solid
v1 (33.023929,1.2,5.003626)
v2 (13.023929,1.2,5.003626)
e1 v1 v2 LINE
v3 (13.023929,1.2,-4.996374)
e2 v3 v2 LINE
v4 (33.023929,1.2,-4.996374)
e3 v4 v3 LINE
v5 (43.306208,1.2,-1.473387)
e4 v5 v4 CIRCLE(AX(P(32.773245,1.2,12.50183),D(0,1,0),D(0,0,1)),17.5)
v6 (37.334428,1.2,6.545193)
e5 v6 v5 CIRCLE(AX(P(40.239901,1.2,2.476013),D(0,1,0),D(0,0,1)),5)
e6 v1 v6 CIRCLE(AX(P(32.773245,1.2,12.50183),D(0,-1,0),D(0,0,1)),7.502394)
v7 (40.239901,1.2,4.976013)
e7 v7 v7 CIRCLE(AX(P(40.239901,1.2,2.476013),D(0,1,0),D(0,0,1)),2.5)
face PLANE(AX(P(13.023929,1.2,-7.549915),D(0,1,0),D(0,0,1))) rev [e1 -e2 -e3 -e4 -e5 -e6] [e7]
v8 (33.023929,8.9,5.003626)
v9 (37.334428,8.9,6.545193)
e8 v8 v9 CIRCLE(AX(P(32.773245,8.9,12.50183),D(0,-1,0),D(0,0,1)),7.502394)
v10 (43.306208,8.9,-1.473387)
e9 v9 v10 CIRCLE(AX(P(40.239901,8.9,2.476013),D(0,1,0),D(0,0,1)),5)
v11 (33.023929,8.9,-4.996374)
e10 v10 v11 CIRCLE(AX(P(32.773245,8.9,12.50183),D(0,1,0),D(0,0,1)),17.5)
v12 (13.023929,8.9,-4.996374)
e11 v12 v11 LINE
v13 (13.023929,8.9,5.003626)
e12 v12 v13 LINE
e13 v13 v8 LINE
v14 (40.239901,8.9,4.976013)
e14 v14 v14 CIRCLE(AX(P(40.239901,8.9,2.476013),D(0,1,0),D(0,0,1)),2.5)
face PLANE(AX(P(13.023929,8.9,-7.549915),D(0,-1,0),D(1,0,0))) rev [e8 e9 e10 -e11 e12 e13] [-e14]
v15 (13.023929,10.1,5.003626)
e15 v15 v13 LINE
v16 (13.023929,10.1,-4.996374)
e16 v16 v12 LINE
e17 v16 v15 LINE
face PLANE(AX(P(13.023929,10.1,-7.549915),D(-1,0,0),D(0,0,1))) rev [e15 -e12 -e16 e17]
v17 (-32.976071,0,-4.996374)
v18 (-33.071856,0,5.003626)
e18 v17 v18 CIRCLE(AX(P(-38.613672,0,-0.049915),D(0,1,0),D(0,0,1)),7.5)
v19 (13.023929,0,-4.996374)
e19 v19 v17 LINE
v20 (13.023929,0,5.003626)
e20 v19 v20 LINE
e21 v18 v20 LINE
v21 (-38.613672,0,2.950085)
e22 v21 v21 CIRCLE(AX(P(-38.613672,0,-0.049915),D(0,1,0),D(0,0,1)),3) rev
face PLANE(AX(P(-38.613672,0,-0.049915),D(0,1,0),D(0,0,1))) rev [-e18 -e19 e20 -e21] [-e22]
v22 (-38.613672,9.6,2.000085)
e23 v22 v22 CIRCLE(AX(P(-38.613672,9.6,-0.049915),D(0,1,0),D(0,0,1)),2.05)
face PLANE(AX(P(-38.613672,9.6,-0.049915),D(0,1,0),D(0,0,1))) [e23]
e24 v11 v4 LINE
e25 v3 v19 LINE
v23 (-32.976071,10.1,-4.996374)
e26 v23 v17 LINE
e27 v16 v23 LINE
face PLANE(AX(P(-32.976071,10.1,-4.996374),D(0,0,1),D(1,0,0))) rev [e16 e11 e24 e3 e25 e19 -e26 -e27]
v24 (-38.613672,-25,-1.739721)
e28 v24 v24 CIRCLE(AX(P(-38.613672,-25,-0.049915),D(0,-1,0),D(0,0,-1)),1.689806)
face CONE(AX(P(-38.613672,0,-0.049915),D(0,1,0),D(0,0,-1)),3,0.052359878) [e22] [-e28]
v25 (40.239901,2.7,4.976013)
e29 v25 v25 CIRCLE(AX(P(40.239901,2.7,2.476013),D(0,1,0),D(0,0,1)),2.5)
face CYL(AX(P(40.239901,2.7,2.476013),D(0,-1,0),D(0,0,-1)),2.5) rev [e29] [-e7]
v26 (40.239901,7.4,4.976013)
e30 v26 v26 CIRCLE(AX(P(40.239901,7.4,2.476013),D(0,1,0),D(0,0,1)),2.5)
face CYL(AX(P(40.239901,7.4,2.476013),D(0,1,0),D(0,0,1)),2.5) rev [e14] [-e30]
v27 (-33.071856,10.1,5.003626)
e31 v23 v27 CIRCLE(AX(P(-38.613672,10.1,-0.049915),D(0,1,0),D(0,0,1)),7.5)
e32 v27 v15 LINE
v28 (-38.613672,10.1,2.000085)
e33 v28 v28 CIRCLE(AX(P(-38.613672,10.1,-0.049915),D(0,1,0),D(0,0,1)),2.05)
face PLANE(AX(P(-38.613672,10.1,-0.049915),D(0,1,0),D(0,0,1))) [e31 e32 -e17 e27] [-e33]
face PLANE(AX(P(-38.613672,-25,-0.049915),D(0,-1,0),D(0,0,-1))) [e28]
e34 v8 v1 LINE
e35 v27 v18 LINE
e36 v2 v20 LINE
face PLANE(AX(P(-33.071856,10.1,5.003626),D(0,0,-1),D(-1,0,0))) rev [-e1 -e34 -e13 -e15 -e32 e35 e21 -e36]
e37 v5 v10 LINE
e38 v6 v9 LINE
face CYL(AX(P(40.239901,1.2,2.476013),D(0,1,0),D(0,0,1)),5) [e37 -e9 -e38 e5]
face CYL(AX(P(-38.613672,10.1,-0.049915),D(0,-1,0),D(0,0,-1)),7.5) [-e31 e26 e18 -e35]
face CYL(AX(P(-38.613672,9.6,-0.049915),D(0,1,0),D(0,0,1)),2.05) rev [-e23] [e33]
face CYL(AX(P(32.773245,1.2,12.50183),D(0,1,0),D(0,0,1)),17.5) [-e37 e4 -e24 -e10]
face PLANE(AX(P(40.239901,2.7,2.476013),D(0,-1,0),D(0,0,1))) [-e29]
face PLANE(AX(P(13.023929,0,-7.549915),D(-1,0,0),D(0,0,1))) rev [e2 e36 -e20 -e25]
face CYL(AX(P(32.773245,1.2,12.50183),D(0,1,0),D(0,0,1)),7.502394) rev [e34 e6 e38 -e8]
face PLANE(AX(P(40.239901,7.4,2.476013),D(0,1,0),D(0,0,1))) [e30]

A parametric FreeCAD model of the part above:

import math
import FreeCAD as App
import Part
import Sketcher
from FreeCAD import Vector
Q = App.Units.Quantity


def add_polygon(sketch, points):
    """Adds a closed chain of lines whose ends are joined by coincident constraints."""
    first, n = sketch.GeometryCount, len(points)
    for a, b in zip(points, points[1:] + points[:1]):
        sketch.addGeometry(Part.LineSegment(App.Vector(*a, 0), App.Vector(*b, 0)), False)
    for i in range(n):
        sketch.addConstraint(Sketcher.Constraint("Coincident", first + i, 2, first + (i + 1) % n, 1))

doc = App.newDocument("Part")
params = doc.addObject("Spreadsheet::Sheet", "Params")
for row, (alias, value) in enumerate([
    ("sketch1_radius", "7.5 mm"),
    ("sketch1_width", "66 mm"),
    ("sketch1_height", "10 mm"),
    ("pad1_length", "10.1 mm"),
    ("sketch2_diameter", "4.1 mm"),
    ("pocket1_length", "0.5 mm"),
    ("sketch3_width", "20 mm"),
    ("sketch3_height", "1.2 mm"),
    ("sketch4_radius", "5 mm"),
    ("sketch4_radius2", "17.5 mm"),
    ("sketch4_height", "10 mm"),
    ("pad2_length", "7.7 mm"),
    ("sketch5_diameter", "5 mm"),
    ("pocket3_length", "1.5 mm"),
    ("sketch6_diameter", "6 mm"),
    ("pad3_length", "25 mm"),
    ("pad3_taper", "-3 deg"),
], start=1):
    params.set(f"A{row}", alias)
    params.set(f"B{row}", "=" + value)
    params.setAlias(f"B{row}", alias)

body = doc.addObject("PartDesign::Body", "Body")

# Sketch on XZ plane
sketch1 = doc.addObject("Sketcher::SketchObject", "Sketch")
body.addObject(sketch1)
sketch1.AttachmentSupport = (doc.XZ_Plane, [""])
sketch1.MapMode = "FlatFace"
sketch1.addGeometry(Part.LineSegment(Vector(-33, 5, 0), Vector(33, 5, 0)), False)
sketch1.addGeometry(Part.LineSegment(Vector(33, 5, 0), Vector(33, -5, 0)), False)
sketch1.addGeometry(Part.LineSegment(Vector(33, -5, 0), Vector(-33, -5, 0)), False)
sketch1.addGeometry(Part.ArcOfCircle(Part.Circle(Vector(-39, 0, 0), Vector(0, 0, 1), 8), math.radians(42), math.radians(319)), False)
sketch1.addConstraint(Sketcher.Constraint("Coincident", 0, 2, 1, 1))
sketch1.addConstraint(Sketcher.Constraint("Coincident", 1, 2, 2, 1))
sketch1.addConstraint(Sketcher.Constraint("Coincident", 2, 2, 3, 2))
sketch1.addConstraint(Sketcher.Constraint("Coincident", 3, 1, 0, 1))
sketch1.addConstraint(Sketcher.Constraint("Horizontal", 0))
sketch1.addConstraint(Sketcher.Constraint("Vertical", 1))
sketch1.addConstraint(Sketcher.Constraint("Horizontal", 2))
sketch1.addConstraint(Sketcher.Constraint("Radius", 3, Q("7.5 mm")))
sketch1.addConstraint(Sketcher.Constraint("DistanceX", 2, 2, 2, 1, Q("66 mm")))
sketch1.addConstraint(Sketcher.Constraint("DistanceY", 1, 2, 1, 1, Q("10 mm")))
sketch1.addConstraint(Sketcher.Constraint("DistanceX", 3, 3, 0, 2, Q("71.637601 mm")))
sketch1.addConstraint(Sketcher.Constraint("DistanceX", -1, 1, 0, 2, Q("33.023929 mm")))
sketch1.addConstraint(Sketcher.Constraint("DistanceY", 3, 3, -1, 1, Q("0.049915 mm")))
sketch1.setExpression("Constraints[7]", "Params.sketch1_radius")
sketch1.setExpression("Constraints[8]", "Params.sketch1_width")
sketch1.setExpression("Constraints[9]", "Params.sketch1_height")
pad1 = doc.addObject("PartDesign::Pad", "Pad")
body.addObject(pad1)
pad1.Profile = sketch1
pad1.setExpression("Length", "Params.pad1_length")
pad1.Reversed = True

# Sketch on XZ plane
sketch2 = doc.addObject("Sketcher::SketchObject", "Sketch001")
body.addObject(sketch2)
sketch2.AttachmentSupport = (doc.XZ_Plane, [""])
sketch2.MapMode = "FlatFace"
sketch2.AttachmentOffset = App.Placement(Vector(0, 0, -10.1), App.Rotation())
sketch2.addGeometry(Part.Circle(Vector(-38.6, 0, 0), Vector(0, 0, 1), 2), False)
sketch2.addConstraint(Sketcher.Constraint("Diameter", 0, Q("4.1 mm")))
sketch2.addConstraint(Sketcher.Constraint("DistanceX", 0, 3, -1, 1, Q("38.613672 mm")))
sketch2.addConstraint(Sketcher.Constraint("DistanceY", 0, 3, -1, 1, Q("0.049915 mm")))
sketch2.setExpression("Constraints[0]", "Params.sketch2_diameter")
pocket1 = doc.addObject("PartDesign::Pocket", "Pocket")
body.addObject(pocket1)
pocket1.Profile = sketch2
pocket1.setExpression("Length", "Params.pocket1_length")
pocket1.Reversed = True

# Sketch on XY plane
sketch3 = doc.addObject("Sketcher::SketchObject", "Sketch002")
body.addObject(sketch3)
sketch3.AttachmentSupport = (doc.XY_Plane, [""])
sketch3.MapMode = "FlatFace"
sketch3.AttachmentOffset = App.Placement(Vector(0, 0, 5.003626), App.Rotation())
add_polygon(sketch3, [(13, 10.1), (13, 8.9), (33, 8.9), (33, 10.1)])  # lines 0-3
add_polygon(sketch3, [(13, 1.2), (13, 0), (33, 0), (33, 1.2)])  # lines 4-7
sketch3.addConstraint(Sketcher.Constraint("Vertical", 0))
sketch3.addConstraint(Sketcher.Constraint("Horizontal", 1))
sketch3.addConstraint(Sketcher.Constraint("Vertical", 2))
sketch3.addConstraint(Sketcher.Constraint("Horizontal", 3))
sketch3.addConstraint(Sketcher.Constraint("Vertical", 4))
sketch3.addConstraint(Sketcher.Constraint("Horizontal", 5))
sketch3.addConstraint(Sketcher.Constraint("Vertical", 6))
sketch3.addConstraint(Sketcher.Constraint("Horizontal", 7))
sketch3.addConstraint(Sketcher.Constraint("PointOnObject", 4, 2, -1))
sketch3.addConstraint(Sketcher.Constraint("Vertical", 3, 2, 4, 2))
sketch3.addConstraint(Sketcher.Constraint("Vertical", 2, 2, 5, 2))
sketch3.addConstraint(Sketcher.Constraint("Equal", 2, 4))
sketch3.addConstraint(Sketcher.Constraint("DistanceX", 1, 1, 1, 2, Q("20 mm")))
sketch3.addConstraint(Sketcher.Constraint("DistanceY", 0, 2, 0, 1, Q("1.2 mm")))
sketch3.addConstraint(Sketcher.Constraint("DistanceY", -1, 1, 0, 2, Q("8.9 mm")))
sketch3.addConstraint(Sketcher.Constraint("DistanceX", -1, 1, 0, 2, Q("13.023929 mm")))
sketch3.setExpression("Constraints[20]", "Params.sketch3_width")
sketch3.setExpression("Constraints[21]", "Params.sketch3_height")
pocket2 = doc.addObject("PartDesign::Pocket", "Pocket001")
body.addObject(pocket2)
pocket2.Profile = sketch3
pocket2.Type = "ThroughAll"

# Sketch on XZ plane
sketch4 = doc.addObject("Sketcher::SketchObject", "Sketch003")
body.addObject(sketch4)
sketch4.AttachmentSupport = (doc.XZ_Plane, [""])
sketch4.MapMode = "FlatFace"
sketch4.AttachmentOffset = App.Placement(Vector(0, 0, -1.2), App.Rotation())
sketch4.addGeometry(Part.LineSegment(Vector(33, -5, 0), Vector(33, 5, 0)), False)
sketch4.addGeometry(Part.ArcOfCircle(Part.Circle(Vector(32.8, 12.5, 0), Vector(0, 0, 1), 7.5), math.radians(-88), math.radians(-53)), False)
sketch4.addGeometry(Part.ArcOfCircle(Part.Circle(Vector(40.2, 2.5, 0), Vector(0, 0, 1), 5), math.radians(-52), math.radians(126)), False)
sketch4.addGeometry(Part.ArcOfCircle(Part.Circle(Vector(32.8, 12.5, 0), Vector(0, 0, 1), 17.5), math.radians(-89), math.radians(-53)), False)
sketch4.addConstraint(Sketcher.Constraint("Coincident", 0, 2, 1, 1))
sketch4.addConstraint(Sketcher.Constraint("Coincident", 1, 2, 2, 2))
sketch4.addConstraint(Sketcher.Constraint("Coincident", 2, 1, 3, 2))
sketch4.addConstraint(Sketcher.Constraint("Coincident", 3, 1, 0, 1))
sketch4.addConstraint(Sketcher.Constraint("Vertical", 0))
sketch4.addConstraint(Sketcher.Constraint("Coincident", 3, 3, 1, 3))
sketch4.addConstraint(Sketcher.Constraint("Radius", 2, Q("5 mm")))
sketch4.addConstraint(Sketcher.Constraint("Radius", 3, Q("17.5 mm")))
sketch4.addConstraint(Sketcher.Constraint("DistanceY", 0, 1, 0, 2, Q("10 mm")))
sketch4.addConstraint(Sketcher.Constraint("Radius", 1, Q("7.502394 mm")))
sketch4.addConstraint(Sketcher.Constraint("DistanceX", -1, 1, 2, 3, Q("40.239901 mm")))
sketch4.addConstraint(Sketcher.Constraint("DistanceX", 0, 2, 1, 2, Q("4.310499 mm")))
sketch4.addConstraint(Sketcher.Constraint("DistanceY", 2, 1, 2, 3, Q("3.9494 mm")))
sketch4.addConstraint(Sketcher.Constraint("DistanceY", -1, 1, 1, 3, Q("12.50183 mm")))
sketch4.setExpression("Constraints[6]", "Params.sketch4_radius")
sketch4.setExpression("Constraints[7]", "Params.sketch4_radius2")
sketch4.setExpression("Constraints[8]", "Params.sketch4_height")
pad2 = doc.addObject("PartDesign::Pad", "Pad001")
body.addObject(pad2)
pad2.Profile = sketch4
pad2.setExpression("Length", "Params.pad2_length")
pad2.Reversed = True

# Sketch on XZ plane
sketch5 = doc.addObject("Sketcher::SketchObject", "Sketch004")
body.addObject(sketch5)
sketch5.AttachmentSupport = (doc.XZ_Plane, [""])
sketch5.MapMode = "FlatFace"
sketch5.AttachmentOffset = App.Placement(Vector(0, 0, -8.9), App.Rotation())
sketch5.addGeometry(Part.Circle(Vector(40.2, 2.5, 0), Vector(0, 0, 1), 2.5), False)
sketch5.addConstraint(Sketcher.Constraint("Diameter", 0, Q("5 mm")))
sketch5.addConstraint(Sketcher.Constraint("DistanceX", -1, 1, 0, 3, Q("40.239901 mm")))
sketch5.addConstraint(Sketcher.Constraint("DistanceY", -1, 1, 0, 3, Q("2.476013 mm")))
sketch5.setExpression("Constraints[0]", "Params.sketch5_diameter")
pocket3 = doc.addObject("PartDesign::Pocket", "Pocket002")
body.addObject(pocket3)
pocket3.Profile = sketch5
pocket3.setExpression("Length", "Params.pocket3_length")
pocket3.Reversed = True

# Sketch on XZ plane
sketch6 = doc.addObject("Sketcher::SketchObject", "Sketch005")
body.addObject(sketch6)
sketch6.AttachmentSupport = (doc.XZ_Plane, [""])
sketch6.MapMode = "FlatFace"
sketch6.addGeometry(Part.Circle(Vector(-38.6, 0, 0), Vector(0, 0, 1), 3), False)
sketch6.addConstraint(Sketcher.Constraint("Diameter", 0, Q("6 mm")))
sketch6.addConstraint(Sketcher.Constraint("DistanceX", 0, 3, -1, 1, Q("38.613672 mm")))
sketch6.addConstraint(Sketcher.Constraint("DistanceY", 0, 3, -1, 1, Q("0.049915 mm")))
sketch6.setExpression("Constraints[0]", "Params.sketch6_diameter")
pad3 = doc.addObject("PartDesign::Pad", "Pad002")
body.addObject(pad3)
pad3.Profile = sketch6
pad3.setExpression("Length", "Params.pad3_length")
pad3.setExpression("TaperAngle", "Params.pad3_taper")
doc.recompute()

datumplane = doc.addObject("PartDesign::Plane", "DatumPlane")
body.addObject(datumplane)
datumplane.AttachmentSupport = (doc.XZ_Plane, [""])
datumplane.MapMode = "FlatFace"
datumplane.AttachmentOffset = App.Placement(Vector(0, 0, -5.05), App.Rotation())
mirrored = doc.addObject("PartDesign::Mirrored", "Mirrored")
body.addObject(mirrored)
mirrored.Originals = [pocket3]
mirrored.MirrorPlane = (datumplane, [""])
body.Tip = mirrored

doc.recompute()
